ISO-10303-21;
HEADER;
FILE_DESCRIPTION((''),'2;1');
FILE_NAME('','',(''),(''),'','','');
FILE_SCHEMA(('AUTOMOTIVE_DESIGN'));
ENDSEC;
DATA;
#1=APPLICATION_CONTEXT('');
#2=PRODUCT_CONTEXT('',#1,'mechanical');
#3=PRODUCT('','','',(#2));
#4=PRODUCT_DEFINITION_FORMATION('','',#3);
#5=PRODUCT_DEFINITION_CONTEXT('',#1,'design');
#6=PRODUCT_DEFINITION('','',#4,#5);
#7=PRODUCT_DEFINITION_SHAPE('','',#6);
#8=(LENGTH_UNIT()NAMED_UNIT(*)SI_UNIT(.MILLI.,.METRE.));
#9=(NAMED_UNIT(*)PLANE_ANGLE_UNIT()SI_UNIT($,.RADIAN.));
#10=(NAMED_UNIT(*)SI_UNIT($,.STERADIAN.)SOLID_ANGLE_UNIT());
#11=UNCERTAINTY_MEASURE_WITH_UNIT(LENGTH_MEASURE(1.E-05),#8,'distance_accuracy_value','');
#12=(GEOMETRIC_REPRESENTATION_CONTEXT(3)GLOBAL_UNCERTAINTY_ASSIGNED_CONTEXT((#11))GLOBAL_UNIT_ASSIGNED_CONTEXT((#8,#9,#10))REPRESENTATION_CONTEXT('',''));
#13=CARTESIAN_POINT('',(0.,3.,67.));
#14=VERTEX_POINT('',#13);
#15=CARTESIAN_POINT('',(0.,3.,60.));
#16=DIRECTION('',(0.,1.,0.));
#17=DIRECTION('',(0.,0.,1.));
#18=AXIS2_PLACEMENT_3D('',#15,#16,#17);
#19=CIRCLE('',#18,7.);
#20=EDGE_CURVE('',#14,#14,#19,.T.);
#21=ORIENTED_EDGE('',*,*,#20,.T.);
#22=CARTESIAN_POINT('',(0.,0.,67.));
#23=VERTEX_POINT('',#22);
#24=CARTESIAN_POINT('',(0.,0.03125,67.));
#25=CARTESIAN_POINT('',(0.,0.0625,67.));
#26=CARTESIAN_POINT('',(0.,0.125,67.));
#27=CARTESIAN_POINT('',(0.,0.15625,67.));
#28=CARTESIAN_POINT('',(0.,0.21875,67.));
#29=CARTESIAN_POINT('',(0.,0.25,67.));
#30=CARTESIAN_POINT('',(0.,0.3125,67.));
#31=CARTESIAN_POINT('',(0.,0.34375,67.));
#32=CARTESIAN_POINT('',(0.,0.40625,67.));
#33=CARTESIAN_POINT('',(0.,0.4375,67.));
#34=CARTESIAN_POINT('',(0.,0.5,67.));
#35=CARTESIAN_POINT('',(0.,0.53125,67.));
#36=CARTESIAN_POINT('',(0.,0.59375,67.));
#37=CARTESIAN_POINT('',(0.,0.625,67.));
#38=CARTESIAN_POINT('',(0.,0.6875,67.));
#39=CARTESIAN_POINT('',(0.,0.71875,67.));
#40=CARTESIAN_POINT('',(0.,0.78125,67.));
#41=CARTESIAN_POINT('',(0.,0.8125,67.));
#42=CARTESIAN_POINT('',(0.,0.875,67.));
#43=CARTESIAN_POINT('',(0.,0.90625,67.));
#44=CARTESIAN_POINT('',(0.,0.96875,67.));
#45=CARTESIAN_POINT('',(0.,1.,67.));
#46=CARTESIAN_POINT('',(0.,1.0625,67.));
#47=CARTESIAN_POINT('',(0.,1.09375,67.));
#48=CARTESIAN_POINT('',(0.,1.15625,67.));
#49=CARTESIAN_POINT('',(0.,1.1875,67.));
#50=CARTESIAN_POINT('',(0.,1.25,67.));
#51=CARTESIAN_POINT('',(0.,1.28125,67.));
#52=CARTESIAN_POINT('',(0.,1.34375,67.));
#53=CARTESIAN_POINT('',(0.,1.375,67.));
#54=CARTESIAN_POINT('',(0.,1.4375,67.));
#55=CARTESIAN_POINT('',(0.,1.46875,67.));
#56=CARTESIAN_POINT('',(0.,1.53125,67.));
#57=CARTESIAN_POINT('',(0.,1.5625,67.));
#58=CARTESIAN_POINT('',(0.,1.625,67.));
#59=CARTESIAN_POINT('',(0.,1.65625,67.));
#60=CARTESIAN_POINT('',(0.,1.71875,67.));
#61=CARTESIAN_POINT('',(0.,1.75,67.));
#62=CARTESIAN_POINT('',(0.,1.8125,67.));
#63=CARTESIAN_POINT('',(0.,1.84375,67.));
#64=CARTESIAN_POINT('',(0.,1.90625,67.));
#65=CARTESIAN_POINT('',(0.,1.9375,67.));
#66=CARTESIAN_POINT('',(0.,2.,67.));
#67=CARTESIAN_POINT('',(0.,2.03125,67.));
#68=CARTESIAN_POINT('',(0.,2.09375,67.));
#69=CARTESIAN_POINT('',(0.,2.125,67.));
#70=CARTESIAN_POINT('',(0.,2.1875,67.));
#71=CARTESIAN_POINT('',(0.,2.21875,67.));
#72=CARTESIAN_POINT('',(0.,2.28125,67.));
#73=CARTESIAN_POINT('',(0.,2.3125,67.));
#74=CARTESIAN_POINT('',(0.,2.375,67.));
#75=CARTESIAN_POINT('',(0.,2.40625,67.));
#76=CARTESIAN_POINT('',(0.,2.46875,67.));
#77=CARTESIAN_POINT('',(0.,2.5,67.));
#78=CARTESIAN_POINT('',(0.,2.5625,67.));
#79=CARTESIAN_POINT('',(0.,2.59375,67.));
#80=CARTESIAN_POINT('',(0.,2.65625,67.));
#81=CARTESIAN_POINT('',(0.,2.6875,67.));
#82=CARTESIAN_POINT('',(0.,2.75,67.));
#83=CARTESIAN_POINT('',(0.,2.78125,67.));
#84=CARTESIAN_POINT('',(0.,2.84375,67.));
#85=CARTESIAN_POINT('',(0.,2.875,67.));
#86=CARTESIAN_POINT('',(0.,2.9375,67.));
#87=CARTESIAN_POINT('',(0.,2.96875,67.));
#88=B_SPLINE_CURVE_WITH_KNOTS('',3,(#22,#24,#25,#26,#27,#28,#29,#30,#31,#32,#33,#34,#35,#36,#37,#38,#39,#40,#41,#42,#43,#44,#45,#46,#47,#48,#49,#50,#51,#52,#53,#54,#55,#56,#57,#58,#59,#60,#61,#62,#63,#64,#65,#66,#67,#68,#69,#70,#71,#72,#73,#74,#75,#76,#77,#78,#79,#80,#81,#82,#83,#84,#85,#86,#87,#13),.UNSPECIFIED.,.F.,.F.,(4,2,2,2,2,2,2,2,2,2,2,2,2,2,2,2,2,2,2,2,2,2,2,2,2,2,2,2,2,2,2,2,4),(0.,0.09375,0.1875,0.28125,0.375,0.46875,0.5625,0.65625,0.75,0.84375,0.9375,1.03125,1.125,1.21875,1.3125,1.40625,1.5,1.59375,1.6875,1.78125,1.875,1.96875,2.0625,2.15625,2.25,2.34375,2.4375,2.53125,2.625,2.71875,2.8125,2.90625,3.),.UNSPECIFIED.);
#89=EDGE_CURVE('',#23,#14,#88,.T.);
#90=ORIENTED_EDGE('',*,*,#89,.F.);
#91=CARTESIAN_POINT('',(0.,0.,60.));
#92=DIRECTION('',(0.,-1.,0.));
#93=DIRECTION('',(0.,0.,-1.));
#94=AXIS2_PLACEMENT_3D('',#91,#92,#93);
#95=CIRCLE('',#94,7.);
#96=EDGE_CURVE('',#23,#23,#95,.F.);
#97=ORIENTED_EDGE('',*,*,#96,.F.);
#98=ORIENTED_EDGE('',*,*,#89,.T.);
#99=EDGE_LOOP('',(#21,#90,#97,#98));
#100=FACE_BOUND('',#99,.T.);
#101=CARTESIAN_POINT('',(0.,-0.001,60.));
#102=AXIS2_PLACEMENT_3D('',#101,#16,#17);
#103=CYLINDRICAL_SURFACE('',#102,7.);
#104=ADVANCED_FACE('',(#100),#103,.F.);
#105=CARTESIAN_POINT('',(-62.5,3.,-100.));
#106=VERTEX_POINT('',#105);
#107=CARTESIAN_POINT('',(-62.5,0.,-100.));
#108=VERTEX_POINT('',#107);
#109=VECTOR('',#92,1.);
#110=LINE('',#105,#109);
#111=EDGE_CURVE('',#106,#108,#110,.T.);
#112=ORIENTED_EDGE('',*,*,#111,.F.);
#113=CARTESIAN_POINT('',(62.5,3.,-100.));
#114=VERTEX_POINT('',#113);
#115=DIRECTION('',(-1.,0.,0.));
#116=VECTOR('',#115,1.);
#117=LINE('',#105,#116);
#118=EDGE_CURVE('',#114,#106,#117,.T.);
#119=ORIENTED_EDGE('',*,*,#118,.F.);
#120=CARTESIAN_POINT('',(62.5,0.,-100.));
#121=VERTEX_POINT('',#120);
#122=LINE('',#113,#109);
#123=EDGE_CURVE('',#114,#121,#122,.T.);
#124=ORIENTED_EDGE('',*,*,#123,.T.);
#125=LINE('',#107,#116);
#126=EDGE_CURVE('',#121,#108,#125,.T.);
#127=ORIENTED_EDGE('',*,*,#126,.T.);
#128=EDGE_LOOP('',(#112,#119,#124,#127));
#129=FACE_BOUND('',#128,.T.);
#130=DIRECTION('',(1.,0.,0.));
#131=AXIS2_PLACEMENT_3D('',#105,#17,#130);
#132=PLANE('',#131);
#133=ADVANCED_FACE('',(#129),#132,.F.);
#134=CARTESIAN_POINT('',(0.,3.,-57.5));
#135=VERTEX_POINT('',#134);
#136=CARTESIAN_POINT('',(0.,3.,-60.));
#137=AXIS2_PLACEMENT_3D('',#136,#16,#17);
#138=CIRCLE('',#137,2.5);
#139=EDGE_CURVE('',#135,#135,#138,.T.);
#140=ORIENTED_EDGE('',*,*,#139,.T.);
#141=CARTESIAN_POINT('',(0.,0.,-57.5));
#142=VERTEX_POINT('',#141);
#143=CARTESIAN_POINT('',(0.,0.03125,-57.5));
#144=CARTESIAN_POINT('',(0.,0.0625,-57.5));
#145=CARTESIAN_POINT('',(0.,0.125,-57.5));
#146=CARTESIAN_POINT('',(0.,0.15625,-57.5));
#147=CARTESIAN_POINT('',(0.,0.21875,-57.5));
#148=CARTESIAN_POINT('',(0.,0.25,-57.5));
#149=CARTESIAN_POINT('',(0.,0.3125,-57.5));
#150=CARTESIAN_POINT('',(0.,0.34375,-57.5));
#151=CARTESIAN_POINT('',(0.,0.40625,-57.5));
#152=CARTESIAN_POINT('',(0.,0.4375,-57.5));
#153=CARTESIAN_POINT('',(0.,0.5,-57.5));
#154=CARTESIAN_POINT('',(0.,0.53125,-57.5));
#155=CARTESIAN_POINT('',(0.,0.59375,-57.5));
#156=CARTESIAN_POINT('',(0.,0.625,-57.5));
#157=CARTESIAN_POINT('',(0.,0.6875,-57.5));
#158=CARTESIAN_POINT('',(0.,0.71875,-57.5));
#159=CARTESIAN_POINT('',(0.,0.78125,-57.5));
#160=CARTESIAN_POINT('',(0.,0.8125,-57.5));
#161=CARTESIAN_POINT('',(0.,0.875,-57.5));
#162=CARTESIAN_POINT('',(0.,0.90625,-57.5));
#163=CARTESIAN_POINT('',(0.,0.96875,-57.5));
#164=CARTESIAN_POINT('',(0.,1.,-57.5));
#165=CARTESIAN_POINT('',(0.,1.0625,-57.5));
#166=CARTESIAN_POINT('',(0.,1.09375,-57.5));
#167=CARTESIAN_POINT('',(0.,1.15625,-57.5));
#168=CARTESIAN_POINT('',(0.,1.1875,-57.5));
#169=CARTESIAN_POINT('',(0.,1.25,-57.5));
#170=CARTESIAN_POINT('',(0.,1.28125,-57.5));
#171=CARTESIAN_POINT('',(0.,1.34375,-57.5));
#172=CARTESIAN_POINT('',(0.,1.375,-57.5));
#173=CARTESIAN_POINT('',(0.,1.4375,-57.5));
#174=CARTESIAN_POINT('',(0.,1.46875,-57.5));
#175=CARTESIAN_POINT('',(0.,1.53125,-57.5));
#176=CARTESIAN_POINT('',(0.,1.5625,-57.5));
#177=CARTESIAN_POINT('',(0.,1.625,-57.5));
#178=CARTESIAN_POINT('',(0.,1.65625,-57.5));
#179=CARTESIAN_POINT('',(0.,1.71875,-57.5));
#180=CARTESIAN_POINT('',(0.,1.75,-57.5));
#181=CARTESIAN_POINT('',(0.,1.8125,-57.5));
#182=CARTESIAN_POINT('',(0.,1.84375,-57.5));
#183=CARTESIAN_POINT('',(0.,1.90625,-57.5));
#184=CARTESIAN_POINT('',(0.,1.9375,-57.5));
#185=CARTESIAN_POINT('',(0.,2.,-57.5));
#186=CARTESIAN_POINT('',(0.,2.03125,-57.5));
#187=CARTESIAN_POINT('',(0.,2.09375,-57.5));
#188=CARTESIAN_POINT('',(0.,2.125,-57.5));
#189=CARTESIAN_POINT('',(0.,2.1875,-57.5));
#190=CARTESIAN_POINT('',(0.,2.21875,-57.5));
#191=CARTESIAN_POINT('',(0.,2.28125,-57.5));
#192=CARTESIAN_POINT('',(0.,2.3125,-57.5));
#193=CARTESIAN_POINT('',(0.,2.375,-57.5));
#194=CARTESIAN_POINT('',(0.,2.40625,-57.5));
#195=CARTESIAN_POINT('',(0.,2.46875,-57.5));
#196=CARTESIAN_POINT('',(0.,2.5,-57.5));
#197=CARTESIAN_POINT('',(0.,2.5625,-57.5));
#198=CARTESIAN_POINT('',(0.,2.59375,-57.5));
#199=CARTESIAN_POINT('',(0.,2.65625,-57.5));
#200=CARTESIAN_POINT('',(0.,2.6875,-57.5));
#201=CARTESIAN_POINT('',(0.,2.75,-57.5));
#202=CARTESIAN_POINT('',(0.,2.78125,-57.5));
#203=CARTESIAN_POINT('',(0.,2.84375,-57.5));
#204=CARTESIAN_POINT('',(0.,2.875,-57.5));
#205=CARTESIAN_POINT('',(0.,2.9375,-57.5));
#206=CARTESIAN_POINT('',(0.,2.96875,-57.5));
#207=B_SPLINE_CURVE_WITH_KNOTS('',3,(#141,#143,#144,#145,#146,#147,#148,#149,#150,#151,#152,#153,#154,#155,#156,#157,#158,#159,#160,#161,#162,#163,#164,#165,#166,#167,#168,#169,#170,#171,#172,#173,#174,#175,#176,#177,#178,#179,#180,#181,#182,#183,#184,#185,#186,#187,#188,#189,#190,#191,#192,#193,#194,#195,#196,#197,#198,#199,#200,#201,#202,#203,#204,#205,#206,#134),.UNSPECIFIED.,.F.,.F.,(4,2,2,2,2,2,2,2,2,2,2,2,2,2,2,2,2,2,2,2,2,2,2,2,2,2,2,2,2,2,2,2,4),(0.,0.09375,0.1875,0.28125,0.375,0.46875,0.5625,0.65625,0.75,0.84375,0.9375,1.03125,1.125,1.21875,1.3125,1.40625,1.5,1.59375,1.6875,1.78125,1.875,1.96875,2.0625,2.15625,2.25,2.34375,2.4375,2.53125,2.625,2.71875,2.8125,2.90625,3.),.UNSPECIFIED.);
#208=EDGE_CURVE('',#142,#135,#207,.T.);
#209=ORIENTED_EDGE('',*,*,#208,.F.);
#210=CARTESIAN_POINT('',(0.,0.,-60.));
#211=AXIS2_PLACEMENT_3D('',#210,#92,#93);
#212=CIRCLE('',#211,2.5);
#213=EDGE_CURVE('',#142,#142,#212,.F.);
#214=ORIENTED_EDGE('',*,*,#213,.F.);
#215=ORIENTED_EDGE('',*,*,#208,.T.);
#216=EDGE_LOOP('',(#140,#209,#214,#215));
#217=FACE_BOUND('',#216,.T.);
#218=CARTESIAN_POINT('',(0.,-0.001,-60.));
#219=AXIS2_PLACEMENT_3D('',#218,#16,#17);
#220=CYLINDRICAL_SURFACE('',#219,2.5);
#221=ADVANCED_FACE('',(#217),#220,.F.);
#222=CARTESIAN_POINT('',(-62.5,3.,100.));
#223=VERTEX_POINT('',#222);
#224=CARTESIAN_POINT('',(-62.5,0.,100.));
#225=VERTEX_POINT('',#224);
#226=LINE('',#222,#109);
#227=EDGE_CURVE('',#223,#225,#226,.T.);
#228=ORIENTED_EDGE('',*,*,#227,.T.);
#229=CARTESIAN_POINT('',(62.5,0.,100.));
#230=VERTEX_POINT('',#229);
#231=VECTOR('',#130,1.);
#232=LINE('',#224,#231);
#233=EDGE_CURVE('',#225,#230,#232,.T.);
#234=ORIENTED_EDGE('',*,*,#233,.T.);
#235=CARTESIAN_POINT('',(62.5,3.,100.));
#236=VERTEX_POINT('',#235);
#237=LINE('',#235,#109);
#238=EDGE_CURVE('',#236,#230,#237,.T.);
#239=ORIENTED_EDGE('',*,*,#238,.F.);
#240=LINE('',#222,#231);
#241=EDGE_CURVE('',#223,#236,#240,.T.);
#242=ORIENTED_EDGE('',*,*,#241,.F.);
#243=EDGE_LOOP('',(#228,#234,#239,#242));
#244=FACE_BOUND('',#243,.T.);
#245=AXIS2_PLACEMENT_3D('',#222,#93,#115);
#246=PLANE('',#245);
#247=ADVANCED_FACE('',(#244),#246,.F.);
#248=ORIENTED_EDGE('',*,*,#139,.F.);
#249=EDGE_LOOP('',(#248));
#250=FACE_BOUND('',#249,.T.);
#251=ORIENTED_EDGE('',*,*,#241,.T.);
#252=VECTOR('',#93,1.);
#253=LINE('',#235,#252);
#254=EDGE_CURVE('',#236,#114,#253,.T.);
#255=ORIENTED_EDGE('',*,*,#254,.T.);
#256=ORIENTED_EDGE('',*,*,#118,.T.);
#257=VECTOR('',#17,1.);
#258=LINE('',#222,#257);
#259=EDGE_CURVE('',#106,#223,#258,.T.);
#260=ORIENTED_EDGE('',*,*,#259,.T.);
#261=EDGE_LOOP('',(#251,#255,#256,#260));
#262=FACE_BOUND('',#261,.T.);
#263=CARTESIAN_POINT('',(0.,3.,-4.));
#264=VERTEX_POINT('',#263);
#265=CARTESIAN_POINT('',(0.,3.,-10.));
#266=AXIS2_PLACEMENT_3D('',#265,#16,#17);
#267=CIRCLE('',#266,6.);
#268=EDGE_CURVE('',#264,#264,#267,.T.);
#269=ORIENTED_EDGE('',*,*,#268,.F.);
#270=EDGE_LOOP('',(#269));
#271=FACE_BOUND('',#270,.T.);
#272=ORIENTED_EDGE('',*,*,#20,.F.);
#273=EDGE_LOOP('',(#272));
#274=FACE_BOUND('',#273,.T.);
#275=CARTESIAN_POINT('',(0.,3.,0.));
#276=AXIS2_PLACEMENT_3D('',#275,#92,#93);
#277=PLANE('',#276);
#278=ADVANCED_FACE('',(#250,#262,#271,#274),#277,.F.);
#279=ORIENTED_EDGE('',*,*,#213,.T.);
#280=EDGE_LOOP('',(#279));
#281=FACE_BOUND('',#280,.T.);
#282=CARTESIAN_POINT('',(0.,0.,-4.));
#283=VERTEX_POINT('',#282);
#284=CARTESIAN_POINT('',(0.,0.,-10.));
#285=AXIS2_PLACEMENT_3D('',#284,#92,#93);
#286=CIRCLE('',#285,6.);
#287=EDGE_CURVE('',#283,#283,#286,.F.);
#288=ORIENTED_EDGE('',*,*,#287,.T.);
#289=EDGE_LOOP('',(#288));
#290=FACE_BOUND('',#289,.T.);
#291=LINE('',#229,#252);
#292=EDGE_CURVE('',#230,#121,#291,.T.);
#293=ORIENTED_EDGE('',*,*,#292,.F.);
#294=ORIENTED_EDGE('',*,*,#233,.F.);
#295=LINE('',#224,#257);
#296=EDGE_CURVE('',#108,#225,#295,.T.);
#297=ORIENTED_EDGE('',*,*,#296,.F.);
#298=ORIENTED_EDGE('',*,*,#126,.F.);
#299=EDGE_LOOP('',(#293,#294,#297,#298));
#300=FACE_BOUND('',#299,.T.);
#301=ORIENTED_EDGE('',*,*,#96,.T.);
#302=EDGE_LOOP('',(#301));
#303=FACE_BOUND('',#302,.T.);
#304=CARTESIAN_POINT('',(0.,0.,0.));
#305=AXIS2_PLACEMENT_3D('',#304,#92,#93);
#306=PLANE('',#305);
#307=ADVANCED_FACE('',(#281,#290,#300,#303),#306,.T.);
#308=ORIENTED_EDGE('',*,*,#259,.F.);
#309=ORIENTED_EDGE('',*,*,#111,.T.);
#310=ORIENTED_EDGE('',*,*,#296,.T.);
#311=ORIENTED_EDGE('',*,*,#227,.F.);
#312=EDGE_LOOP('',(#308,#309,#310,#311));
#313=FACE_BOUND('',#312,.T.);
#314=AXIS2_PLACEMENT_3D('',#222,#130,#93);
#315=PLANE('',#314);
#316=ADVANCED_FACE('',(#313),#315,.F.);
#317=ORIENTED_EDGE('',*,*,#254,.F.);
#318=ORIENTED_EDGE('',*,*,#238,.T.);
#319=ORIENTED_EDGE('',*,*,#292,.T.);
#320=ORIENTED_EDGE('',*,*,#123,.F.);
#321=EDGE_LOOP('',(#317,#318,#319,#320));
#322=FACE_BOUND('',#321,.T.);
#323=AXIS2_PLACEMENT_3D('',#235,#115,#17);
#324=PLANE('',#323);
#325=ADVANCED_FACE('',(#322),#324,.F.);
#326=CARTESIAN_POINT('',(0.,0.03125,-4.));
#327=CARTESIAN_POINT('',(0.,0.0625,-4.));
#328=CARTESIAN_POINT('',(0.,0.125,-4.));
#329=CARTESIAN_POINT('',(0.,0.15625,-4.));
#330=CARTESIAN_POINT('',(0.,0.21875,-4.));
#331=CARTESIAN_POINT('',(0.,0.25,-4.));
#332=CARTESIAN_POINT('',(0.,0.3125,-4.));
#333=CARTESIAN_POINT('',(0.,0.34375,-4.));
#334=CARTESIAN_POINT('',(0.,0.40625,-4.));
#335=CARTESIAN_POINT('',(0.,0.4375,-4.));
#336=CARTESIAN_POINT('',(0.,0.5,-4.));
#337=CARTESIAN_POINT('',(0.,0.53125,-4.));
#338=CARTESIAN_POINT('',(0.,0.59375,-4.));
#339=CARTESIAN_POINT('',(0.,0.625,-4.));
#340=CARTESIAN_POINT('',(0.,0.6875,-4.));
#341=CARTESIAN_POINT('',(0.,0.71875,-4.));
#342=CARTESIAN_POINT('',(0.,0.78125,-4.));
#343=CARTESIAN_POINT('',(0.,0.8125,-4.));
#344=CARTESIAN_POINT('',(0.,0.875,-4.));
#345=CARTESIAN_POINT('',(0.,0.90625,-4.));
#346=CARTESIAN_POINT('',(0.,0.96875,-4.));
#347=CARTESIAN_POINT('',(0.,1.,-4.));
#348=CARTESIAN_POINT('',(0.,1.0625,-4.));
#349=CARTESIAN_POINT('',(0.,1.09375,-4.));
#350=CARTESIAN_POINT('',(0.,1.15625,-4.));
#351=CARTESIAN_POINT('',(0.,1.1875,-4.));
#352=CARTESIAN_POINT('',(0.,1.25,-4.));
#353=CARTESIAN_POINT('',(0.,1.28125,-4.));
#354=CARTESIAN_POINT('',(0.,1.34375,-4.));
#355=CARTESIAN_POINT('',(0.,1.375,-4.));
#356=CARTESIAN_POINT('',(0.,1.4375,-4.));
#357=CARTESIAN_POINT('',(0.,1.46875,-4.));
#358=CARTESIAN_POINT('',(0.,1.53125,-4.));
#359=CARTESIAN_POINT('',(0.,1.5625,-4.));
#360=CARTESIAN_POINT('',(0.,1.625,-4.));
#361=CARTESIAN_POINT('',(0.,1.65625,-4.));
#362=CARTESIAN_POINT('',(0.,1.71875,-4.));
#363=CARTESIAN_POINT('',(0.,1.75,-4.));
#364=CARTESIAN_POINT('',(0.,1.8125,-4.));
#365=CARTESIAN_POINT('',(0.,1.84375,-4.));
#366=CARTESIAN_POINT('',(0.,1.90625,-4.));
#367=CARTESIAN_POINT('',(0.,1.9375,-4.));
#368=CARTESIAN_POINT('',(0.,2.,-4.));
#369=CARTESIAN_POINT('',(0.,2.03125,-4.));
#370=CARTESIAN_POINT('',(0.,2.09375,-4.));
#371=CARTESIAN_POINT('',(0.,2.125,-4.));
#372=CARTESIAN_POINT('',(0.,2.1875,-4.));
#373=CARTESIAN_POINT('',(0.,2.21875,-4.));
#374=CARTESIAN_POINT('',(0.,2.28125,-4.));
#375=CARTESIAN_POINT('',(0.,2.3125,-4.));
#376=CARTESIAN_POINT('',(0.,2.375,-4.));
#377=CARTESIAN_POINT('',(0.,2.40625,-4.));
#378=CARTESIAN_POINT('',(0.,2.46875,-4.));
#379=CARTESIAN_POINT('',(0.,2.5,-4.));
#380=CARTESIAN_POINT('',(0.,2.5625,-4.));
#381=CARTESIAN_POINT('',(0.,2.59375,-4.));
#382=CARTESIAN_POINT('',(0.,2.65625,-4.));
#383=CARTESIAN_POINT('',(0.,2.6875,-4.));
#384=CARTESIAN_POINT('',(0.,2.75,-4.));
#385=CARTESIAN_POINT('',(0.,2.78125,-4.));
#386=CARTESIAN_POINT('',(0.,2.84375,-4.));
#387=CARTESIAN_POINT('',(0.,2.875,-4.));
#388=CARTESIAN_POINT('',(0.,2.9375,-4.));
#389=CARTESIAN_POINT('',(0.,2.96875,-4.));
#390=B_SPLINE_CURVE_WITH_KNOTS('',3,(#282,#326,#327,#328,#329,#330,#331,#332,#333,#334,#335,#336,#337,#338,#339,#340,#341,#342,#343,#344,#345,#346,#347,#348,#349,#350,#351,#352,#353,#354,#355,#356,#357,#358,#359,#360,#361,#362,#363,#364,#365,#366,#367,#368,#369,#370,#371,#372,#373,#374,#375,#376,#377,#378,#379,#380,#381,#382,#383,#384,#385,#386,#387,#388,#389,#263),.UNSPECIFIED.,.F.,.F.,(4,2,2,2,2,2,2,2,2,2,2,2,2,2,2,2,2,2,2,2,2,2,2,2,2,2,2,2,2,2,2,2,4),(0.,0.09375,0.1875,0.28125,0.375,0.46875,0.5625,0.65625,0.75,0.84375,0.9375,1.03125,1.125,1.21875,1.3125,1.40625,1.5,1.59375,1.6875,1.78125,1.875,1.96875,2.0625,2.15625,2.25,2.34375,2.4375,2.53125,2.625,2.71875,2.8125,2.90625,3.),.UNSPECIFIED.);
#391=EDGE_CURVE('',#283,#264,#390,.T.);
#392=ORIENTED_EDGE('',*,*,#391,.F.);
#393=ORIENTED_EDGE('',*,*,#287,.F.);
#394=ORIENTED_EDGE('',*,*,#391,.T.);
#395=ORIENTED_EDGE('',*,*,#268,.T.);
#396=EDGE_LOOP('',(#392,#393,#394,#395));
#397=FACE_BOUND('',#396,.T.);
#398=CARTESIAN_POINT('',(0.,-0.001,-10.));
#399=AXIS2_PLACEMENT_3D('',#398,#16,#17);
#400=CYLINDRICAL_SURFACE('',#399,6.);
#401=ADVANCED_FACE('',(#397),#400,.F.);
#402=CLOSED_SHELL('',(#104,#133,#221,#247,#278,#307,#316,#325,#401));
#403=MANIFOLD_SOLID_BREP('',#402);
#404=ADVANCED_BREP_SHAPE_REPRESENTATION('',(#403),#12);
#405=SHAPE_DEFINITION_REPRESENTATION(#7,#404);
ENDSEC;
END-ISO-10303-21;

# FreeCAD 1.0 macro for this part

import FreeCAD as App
import Part
import Sketcher

V = App.Vector
Q = App.Units.Quantity

doc = App.newDocument("Part")
body = doc.addObject("PartDesign::Body", "Body")

sketch1 = body.newObject("Sketcher::SketchObject", "Sketch")
sketch1.AttachmentSupport = (doc.getObject("XZ_Plane"), [""])
sketch1.MapMode = "FlatFace"
sketch1.addGeometry([
    Part.LineSegment(V(-62, -100, 0), V(-62, 100, 0)),
    Part.LineSegment(V(-62, 100, 0), V(62, 100, 0)),
    Part.LineSegment(V(62, 100, 0), V(62, -100, 0)),
    Part.LineSegment(V(62, -100, 0), V(-62, -100, 0)),
], False)
sketch1.addConstraint([
    Sketcher.Constraint("Coincident", 0, 2, 1, 1),
    Sketcher.Constraint("Coincident", 1, 2, 2, 1),
    Sketcher.Constraint("Coincident", 2, 2, 3, 1),
    Sketcher.Constraint("Coincident", 3, 2, 0, 1),
    Sketcher.Constraint("Vertical", 0),
    Sketcher.Constraint("Horizontal", 1),
    Sketcher.Constraint("Vertical", 2),
    Sketcher.Constraint("Horizontal", 3),
    Sketcher.Constraint("Symmetric", 0, 2, 2, 2, -1, 1),
    Sketcher.Constraint("DistanceX", 1, 1, 1, 2, Q("125 mm")),
    Sketcher.Constraint("DistanceY", 0, 1, 0, 2, Q("200 mm")),
])
pad1 = body.newObject("PartDesign::Pad", "Pad")
pad1.Profile = sketch1
pad1.Length = 3
pad1.Reversed = True

sketch2 = body.newObject("Sketcher::SketchObject", "Sketch001")
sketch2.AttachmentSupport = (doc.getObject("XZ_Plane"), [""])
sketch2.MapMode = "FlatFace"
sketch2.AttachmentOffset = App.Placement(V(0, 0, -3), App.Rotation())
sketch2.addGeometry([
    Part.Circle(V(0, -60, 0), V(0, 0, 1), 2.5),
    Part.Circle(V(0, 60, 0), V(0, 0, 1), 7),
    Part.Circle(V(0, -10, 0), V(0, 0, 1), 6),
], False)
sketch2.addConstraint([
    Sketcher.Constraint("Symmetric", 0, 3, 1, 3, -1, 1),
    Sketcher.Constraint("PointOnObject", 0, 3, -2),
    Sketcher.Constraint("PointOnObject", 2, 3, -2),
    Sketcher.Constraint("Diameter", 0, Q("5 mm")),
    Sketcher.Constraint("Diameter", 1, Q("14 mm")),
    Sketcher.Constraint("Diameter", 2, Q("12 mm")),
    Sketcher.Constraint("DistanceY", 0, 3, -1, 1, Q("60 mm")),
    Sketcher.Constraint("DistanceY", 2, 3, -1, 1, Q("10 mm")),
])
pocket1 = body.newObject("PartDesign::Pocket", "Pocket")
pocket1.Profile = sketch2
pocket1.Length = 3
pocket1.Reversed = True

doc.recompute()
